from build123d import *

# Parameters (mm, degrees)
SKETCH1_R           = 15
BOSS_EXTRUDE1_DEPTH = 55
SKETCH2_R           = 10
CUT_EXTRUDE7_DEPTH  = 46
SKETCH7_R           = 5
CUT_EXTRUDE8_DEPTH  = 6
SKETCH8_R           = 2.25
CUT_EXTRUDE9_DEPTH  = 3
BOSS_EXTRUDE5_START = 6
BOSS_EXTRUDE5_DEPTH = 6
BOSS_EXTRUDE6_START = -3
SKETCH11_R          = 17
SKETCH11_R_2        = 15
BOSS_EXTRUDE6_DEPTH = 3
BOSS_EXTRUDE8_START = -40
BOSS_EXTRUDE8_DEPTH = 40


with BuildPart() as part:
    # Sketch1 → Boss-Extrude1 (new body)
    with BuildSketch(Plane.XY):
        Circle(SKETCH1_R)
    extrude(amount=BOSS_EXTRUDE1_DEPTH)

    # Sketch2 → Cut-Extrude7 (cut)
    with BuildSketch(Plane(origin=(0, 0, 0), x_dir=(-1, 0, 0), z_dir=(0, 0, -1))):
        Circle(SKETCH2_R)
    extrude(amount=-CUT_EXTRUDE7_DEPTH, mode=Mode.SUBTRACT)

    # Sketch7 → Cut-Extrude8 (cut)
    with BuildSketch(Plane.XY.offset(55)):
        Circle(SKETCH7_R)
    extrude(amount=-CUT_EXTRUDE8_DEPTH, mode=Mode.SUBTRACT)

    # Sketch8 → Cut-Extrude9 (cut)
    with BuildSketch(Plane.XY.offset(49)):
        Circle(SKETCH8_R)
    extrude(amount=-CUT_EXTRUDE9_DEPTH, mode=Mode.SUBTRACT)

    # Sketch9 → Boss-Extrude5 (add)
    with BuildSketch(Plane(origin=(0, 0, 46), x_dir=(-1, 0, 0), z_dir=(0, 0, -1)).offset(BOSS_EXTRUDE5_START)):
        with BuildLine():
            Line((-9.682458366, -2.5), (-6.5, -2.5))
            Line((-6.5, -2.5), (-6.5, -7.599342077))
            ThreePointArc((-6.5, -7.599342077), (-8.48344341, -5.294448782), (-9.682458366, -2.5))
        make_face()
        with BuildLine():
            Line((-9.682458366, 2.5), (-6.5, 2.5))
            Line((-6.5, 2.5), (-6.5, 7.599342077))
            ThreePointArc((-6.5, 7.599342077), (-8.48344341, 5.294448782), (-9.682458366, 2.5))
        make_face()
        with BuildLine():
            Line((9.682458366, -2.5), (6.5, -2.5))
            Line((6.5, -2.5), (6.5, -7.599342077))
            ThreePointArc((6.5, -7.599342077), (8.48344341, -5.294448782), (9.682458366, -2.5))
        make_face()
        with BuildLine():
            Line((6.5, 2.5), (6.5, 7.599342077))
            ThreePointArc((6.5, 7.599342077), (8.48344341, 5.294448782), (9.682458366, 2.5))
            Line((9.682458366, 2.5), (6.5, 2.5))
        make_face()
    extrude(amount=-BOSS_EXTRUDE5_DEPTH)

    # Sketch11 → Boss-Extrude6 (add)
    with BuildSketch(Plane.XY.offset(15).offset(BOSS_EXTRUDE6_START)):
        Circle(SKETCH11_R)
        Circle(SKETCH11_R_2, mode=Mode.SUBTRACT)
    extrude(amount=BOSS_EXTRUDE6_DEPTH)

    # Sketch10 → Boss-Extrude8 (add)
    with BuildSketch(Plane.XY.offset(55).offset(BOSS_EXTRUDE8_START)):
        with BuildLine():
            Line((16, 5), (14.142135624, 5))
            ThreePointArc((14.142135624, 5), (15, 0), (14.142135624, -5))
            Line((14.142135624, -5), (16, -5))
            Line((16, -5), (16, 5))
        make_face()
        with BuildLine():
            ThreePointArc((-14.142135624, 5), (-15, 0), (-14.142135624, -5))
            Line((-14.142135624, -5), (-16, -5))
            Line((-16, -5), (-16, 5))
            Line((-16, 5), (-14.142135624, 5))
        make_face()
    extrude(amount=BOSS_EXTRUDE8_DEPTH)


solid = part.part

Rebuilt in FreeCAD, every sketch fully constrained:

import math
import FreeCAD as App
import Part
import Sketcher
from FreeCAD import Vector

doc = App.newDocument("Part")
body = doc.addObject("PartDesign::Body", "Body")

sketch1 = body.newObject("Sketcher::SketchObject", "Sketch")
sketch1.AttachmentSupport = (doc.getObject("XY_Plane"), [""])
sketch1.MapMode = "FlatFace"
sketch1.addGeometry(Part.Circle(Vector(0, 0, 0), Vector(0, 0, 1), 15), False)
sketch1.addConstraint(Sketcher.Constraint("Coincident", 0, 3, -1, 1))
sketch1.addConstraint(Sketcher.Constraint("Diameter", 0, 30.0))
pad1 = body.newObject("PartDesign::Pad", "Pad")
pad1.Profile = sketch1
pad1.Length = 55

sketch2 = body.newObject("Sketcher::SketchObject", "Sketch001")
sketch2.AttachmentSupport = (doc.getObject("XY_Plane"), [""])
sketch2.MapMode = "FlatFace"
sketch2.addGeometry(Part.Circle(Vector(0, 0, 0), Vector(0, 0, 1), 10), False)
sketch2.addConstraint(Sketcher.Constraint("Coincident", 0, 3, -1, 1))
sketch2.addConstraint(Sketcher.Constraint("Diameter", 0, 20.0))
pocket1 = body.newObject("PartDesign::Pocket", "Pocket")
pocket1.Profile = sketch2
pocket1.Length = 46
pocket1.Reversed = True

sketch3 = body.newObject("Sketcher::SketchObject", "Sketch002")
sketch3.AttachmentSupport = (doc.getObject("XY_Plane"), [""])
sketch3.MapMode = "FlatFace"
sketch3.AttachmentOffset = App.Placement(Vector(0, 0, 55), App.Rotation())
sketch3.addGeometry(Part.Circle(Vector(0, 0, 0), Vector(0, 0, 1), 5), False)
sketch3.addConstraint(Sketcher.Constraint("Coincident", 0, 3, -1, 1))
sketch3.addConstraint(Sketcher.Constraint("Diameter", 0, 10.0))
pocket2 = body.newObject("PartDesign::Pocket", "Pocket001")
pocket2.Profile = sketch3
pocket2.Length = 6

sketch4 = body.newObject("Sketcher::SketchObject", "Sketch003")
sketch4.AttachmentSupport = (doc.getObject("XY_Plane"), [""])
sketch4.MapMode = "FlatFace"
sketch4.AttachmentOffset = App.Placement(Vector(0, 0, 49), App.Rotation())
sketch4.addGeometry(Part.Circle(Vector(0, 0, 0), Vector(0, 0, 1), 2.2), False)
sketch4.addConstraint(Sketcher.Constraint("Coincident", 0, 3, -1, 1))
sketch4.addConstraint(Sketcher.Constraint("Diameter", 0, 4.5))
pocket3 = body.newObject("PartDesign::Pocket", "Pocket002")
pocket3.Profile = sketch4
pocket3.Length = 3

sketch5 = body.newObject("Sketcher::SketchObject", "Sketch004")
sketch5.AttachmentSupport = (doc.getObject("XY_Plane"), [""])
sketch5.MapMode = "FlatFace"
sketch5.AttachmentOffset = App.Placement(Vector(0, 0, 40), App.Rotation())
sketch5.addGeometry(Part.LineSegment(Vector(6.5, -2.5, 0), Vector(9.7, -2.5, 0)), False)
sketch5.addGeometry(Part.ArcOfCircle(Part.Circle(Vector(0, 0, 0), Vector(0, 0, 1), 10), math.radians(-49), math.radians(-14)), False)
sketch5.addGeometry(Part.LineSegment(Vector(6.5, -7.6, 0), Vector(6.5, -2.5, 0)), False)
sketch5.addGeometry(Part.LineSegment(Vector(9.7, 2.5, 0), Vector(6.5, 2.5, 0)), False)
sketch5.addGeometry(Part.LineSegment(Vector(6.5, 2.5, 0), Vector(6.5, 7.6, 0)), False)
sketch5.addGeometry(Part.ArcOfCircle(Part.Circle(Vector(0, 0, 0), Vector(0, 0, 1), 10), math.radians(14), math.radians(49)), False)
sketch5.addGeometry(Part.LineSegment(Vector(-9.7, -2.5, 0), Vector(-6.5, -2.5, 0)), False)
sketch5.addGeometry(Part.LineSegment(Vector(-6.5, -2.5, 0), Vector(-6.5, -7.6, 0)), False)
sketch5.addGeometry(Part.ArcOfCircle(Part.Circle(Vector(0, 0, 0), Vector(0, 0, 1), 10), math.radians(-166), math.radians(-131)), False)
sketch5.addGeometry(Part.LineSegment(Vector(-6.5, 7.6, 0), Vector(-6.5, 2.5, 0)), False)
sketch5.addGeometry(Part.LineSegment(Vector(-6.5, 2.5, 0), Vector(-9.7, 2.5, 0)), False)
sketch5.addGeometry(Part.ArcOfCircle(Part.Circle(Vector(0, 0, 0), Vector(0, 0, 1), 10), math.radians(131), math.radians(166)), False)
sketch5.addConstraint(Sketcher.Constraint("Coincident", 0, 2, 1, 2))
sketch5.addConstraint(Sketcher.Constraint("Coincident", 1, 1, 2, 1))
sketch5.addConstraint(Sketcher.Constraint("Coincident", 2, 2, 0, 1))
sketch5.addConstraint(Sketcher.Constraint("Coincident", 3, 2, 4, 1))
sketch5.addConstraint(Sketcher.Constraint("Coincident", 4, 2, 5, 2))
sketch5.addConstraint(Sketcher.Constraint("Coincident", 5, 1, 3, 1))
sketch5.addConstraint(Sketcher.Constraint("Coincident", 6, 2, 7, 1))
sketch5.addConstraint(Sketcher.Constraint("Coincident", 7, 2, 8, 2))
sketch5.addConstraint(Sketcher.Constraint("Coincident", 8, 1, 6, 1))
sketch5.addConstraint(Sketcher.Constraint("Coincident", 9, 2, 10, 1))
sketch5.addConstraint(Sketcher.Constraint("Coincident", 10, 2, 11, 2))
sketch5.addConstraint(Sketcher.Constraint("Coincident", 11, 1, 9, 1))
sketch5.addConstraint(Sketcher.Constraint("Horizontal", 0))
sketch5.addConstraint(Sketcher.Constraint("Vertical", 2))
sketch5.addConstraint(Sketcher.Constraint("Horizontal", 3))
sketch5.addConstraint(Sketcher.Constraint("Vertical", 4))
sketch5.addConstraint(Sketcher.Constraint("Horizontal", 6))
sketch5.addConstraint(Sketcher.Constraint("Vertical", 7))
sketch5.addConstraint(Sketcher.Constraint("Vertical", 9))
sketch5.addConstraint(Sketcher.Constraint("Horizontal", 10))
sketch5.addConstraint(Sketcher.Constraint("Coincident", 1, 3, -1, 1))
sketch5.addConstraint(Sketcher.Constraint("Coincident", 5, 3, -1, 1))
sketch5.addConstraint(Sketcher.Constraint("Coincident", 8, 3, -1, 1))
sketch5.addConstraint(Sketcher.Constraint("Coincident", 11, 3, -1, 1))
sketch5.addConstraint(Sketcher.Constraint("Equal", 1, 5))
sketch5.addConstraint(Sketcher.Constraint("Equal", 5, 8))
sketch5.addConstraint(Sketcher.Constraint("Equal", 8, 11))
sketch5.addConstraint(Sketcher.Constraint("Symmetric", 3, 2, 6, 2, -1, 1))
sketch5.addConstraint(Sketcher.Constraint("Symmetric", 2, 2, 9, 2, -1, 1))
sketch5.addConstraint(Sketcher.Constraint("Symmetric", 2, 2, 6, 2, -2))
sketch5.addConstraint(Sketcher.Constraint("Radius", 1, 10.0))
sketch5.addConstraint(Sketcher.Constraint("DistanceY", 2, 2, 3, 2, 5.0))
sketch5.addConstraint(Sketcher.Constraint("DistanceX", 6, 2, 2, 2, 13.0))
pad2 = body.newObject("PartDesign::Pad", "Pad001")
pad2.Profile = sketch5
pad2.Length = 6

sketch6 = body.newObject("Sketcher::SketchObject", "Sketch005")
sketch6.AttachmentSupport = (doc.getObject("XY_Plane"), [""])
sketch6.MapMode = "FlatFace"
sketch6.AttachmentOffset = App.Placement(Vector(0, 0, 12), App.Rotation())
sketch6.addGeometry(Part.Circle(Vector(0, 0, 0), Vector(0, 0, 1), 17), False)
sketch6.addGeometry(Part.Circle(Vector(0, 0, 0), Vector(0, 0, 1), 15), False)
sketch6.addConstraint(Sketcher.Constraint("Coincident", 0, 3, -1, 1))
sketch6.addConstraint(Sketcher.Constraint("Coincident", 1, 3, -1, 1))
sketch6.addConstraint(Sketcher.Constraint("Diameter", 0, 34.0))
sketch6.addConstraint(Sketcher.Constraint("Diameter", 1, 30.0))
pad3 = body.newObject("PartDesign::Pad", "Pad002")
pad3.Profile = sketch6
pad3.Length = 3

sketch7 = body.newObject("Sketcher::SketchObject", "Sketch006")
sketch7.AttachmentSupport = (doc.getObject("XY_Plane"), [""])
sketch7.MapMode = "FlatFace"
sketch7.AttachmentOffset = App.Placement(Vector(0, 0, 15), App.Rotation())
sketch7.addGeometry(Part.LineSegment(Vector(16, 5, 0), Vector(14.1, 5, 0)), False)
sketch7.addGeometry(Part.ArcOfCircle(Part.Circle(Vector(0, 0, 0), Vector(0, 0, 1), 15), math.radians(-19), math.radians(19)), False)
sketch7.addGeometry(Part.LineSegment(Vector(14.1, -5, 0), Vector(16, -5, 0)), False)
sketch7.addGeometry(Part.LineSegment(Vector(16, -5, 0), Vector(16, 5, 0)), False)
sketch7.addGeometry(Part.ArcOfCircle(Part.Circle(Vector(0, 0, 0), Vector(0, 0, 1), 15), math.radians(161), math.radians(199)), False)
sketch7.addGeometry(Part.LineSegment(Vector(-14.1, 5, 0), Vector(-16, 5, 0)), False)
sketch7.addGeometry(Part.LineSegment(Vector(-16, 5, 0), Vector(-16, -5, 0)), False)
sketch7.addGeometry(Part.LineSegment(Vector(-16, -5, 0), Vector(-14.1, -5, 0)), False)
sketch7.addConstraint(Sketcher.Constraint("Coincident", 0, 2, 1, 2))
sketch7.addConstraint(Sketcher.Constraint("Coincident", 1, 1, 2, 1))
sketch7.addConstraint(Sketcher.Constraint("Coincident", 2, 2, 3, 1))
sketch7.addConstraint(Sketcher.Constraint("Coincident", 3, 2, 0, 1))
sketch7.addConstraint(Sketcher.Constraint("Coincident", 4, 1, 5, 1))
sketch7.addConstraint(Sketcher.Constraint("Coincident", 5, 2, 6, 1))
sketch7.addConstraint(Sketcher.Constraint("Coincident", 6, 2, 7, 1))
sketch7.addConstraint(Sketcher.Constraint("Coincident", 7, 2, 4, 2))
sketch7.addConstraint(Sketcher.Constraint("Horizontal", 0))
sketch7.addConstraint(Sketcher.Constraint("Horizontal", 2))
sketch7.addConstraint(Sketcher.Constraint("Vertical", 3))
sketch7.addConstraint(Sketcher.Constraint("Horizontal", 5))
sketch7.addConstraint(Sketcher.Constraint("Vertical", 6))
sketch7.addConstraint(Sketcher.Constraint("Horizontal", 7))
sketch7.addConstraint(Sketcher.Constraint("Coincident", 1, 3, -1, 1))
sketch7.addConstraint(Sketcher.Constraint("Coincident", 4, 3, -1, 1))
sketch7.addConstraint(Sketcher.Constraint("Equal", 1, 4))
sketch7.addConstraint(Sketcher.Constraint("Symmetric", 2, 2, 5, 2, -1, 1))
sketch7.addConstraint(Sketcher.Constraint("Horizontal", 3, 2, 4, 1))
sketch7.addConstraint(Sketcher.Constraint("Horizontal", 2, 2, 6, 2))
sketch7.addConstraint(Sketcher.Constraint("Radius", 1, 15.0))
sketch7.addConstraint(Sketcher.Constraint("DistanceY", 3, 1, 3, 2, 10.0))
sketch7.addConstraint(Sketcher.Constraint("DistanceX", -1, 1, 2, 2, 16.0))
pad4 = body.newObject("PartDesign::Pad", "Pad003")
pad4.Profile = sketch7
pad4.Length = 40

doc.recompute()
